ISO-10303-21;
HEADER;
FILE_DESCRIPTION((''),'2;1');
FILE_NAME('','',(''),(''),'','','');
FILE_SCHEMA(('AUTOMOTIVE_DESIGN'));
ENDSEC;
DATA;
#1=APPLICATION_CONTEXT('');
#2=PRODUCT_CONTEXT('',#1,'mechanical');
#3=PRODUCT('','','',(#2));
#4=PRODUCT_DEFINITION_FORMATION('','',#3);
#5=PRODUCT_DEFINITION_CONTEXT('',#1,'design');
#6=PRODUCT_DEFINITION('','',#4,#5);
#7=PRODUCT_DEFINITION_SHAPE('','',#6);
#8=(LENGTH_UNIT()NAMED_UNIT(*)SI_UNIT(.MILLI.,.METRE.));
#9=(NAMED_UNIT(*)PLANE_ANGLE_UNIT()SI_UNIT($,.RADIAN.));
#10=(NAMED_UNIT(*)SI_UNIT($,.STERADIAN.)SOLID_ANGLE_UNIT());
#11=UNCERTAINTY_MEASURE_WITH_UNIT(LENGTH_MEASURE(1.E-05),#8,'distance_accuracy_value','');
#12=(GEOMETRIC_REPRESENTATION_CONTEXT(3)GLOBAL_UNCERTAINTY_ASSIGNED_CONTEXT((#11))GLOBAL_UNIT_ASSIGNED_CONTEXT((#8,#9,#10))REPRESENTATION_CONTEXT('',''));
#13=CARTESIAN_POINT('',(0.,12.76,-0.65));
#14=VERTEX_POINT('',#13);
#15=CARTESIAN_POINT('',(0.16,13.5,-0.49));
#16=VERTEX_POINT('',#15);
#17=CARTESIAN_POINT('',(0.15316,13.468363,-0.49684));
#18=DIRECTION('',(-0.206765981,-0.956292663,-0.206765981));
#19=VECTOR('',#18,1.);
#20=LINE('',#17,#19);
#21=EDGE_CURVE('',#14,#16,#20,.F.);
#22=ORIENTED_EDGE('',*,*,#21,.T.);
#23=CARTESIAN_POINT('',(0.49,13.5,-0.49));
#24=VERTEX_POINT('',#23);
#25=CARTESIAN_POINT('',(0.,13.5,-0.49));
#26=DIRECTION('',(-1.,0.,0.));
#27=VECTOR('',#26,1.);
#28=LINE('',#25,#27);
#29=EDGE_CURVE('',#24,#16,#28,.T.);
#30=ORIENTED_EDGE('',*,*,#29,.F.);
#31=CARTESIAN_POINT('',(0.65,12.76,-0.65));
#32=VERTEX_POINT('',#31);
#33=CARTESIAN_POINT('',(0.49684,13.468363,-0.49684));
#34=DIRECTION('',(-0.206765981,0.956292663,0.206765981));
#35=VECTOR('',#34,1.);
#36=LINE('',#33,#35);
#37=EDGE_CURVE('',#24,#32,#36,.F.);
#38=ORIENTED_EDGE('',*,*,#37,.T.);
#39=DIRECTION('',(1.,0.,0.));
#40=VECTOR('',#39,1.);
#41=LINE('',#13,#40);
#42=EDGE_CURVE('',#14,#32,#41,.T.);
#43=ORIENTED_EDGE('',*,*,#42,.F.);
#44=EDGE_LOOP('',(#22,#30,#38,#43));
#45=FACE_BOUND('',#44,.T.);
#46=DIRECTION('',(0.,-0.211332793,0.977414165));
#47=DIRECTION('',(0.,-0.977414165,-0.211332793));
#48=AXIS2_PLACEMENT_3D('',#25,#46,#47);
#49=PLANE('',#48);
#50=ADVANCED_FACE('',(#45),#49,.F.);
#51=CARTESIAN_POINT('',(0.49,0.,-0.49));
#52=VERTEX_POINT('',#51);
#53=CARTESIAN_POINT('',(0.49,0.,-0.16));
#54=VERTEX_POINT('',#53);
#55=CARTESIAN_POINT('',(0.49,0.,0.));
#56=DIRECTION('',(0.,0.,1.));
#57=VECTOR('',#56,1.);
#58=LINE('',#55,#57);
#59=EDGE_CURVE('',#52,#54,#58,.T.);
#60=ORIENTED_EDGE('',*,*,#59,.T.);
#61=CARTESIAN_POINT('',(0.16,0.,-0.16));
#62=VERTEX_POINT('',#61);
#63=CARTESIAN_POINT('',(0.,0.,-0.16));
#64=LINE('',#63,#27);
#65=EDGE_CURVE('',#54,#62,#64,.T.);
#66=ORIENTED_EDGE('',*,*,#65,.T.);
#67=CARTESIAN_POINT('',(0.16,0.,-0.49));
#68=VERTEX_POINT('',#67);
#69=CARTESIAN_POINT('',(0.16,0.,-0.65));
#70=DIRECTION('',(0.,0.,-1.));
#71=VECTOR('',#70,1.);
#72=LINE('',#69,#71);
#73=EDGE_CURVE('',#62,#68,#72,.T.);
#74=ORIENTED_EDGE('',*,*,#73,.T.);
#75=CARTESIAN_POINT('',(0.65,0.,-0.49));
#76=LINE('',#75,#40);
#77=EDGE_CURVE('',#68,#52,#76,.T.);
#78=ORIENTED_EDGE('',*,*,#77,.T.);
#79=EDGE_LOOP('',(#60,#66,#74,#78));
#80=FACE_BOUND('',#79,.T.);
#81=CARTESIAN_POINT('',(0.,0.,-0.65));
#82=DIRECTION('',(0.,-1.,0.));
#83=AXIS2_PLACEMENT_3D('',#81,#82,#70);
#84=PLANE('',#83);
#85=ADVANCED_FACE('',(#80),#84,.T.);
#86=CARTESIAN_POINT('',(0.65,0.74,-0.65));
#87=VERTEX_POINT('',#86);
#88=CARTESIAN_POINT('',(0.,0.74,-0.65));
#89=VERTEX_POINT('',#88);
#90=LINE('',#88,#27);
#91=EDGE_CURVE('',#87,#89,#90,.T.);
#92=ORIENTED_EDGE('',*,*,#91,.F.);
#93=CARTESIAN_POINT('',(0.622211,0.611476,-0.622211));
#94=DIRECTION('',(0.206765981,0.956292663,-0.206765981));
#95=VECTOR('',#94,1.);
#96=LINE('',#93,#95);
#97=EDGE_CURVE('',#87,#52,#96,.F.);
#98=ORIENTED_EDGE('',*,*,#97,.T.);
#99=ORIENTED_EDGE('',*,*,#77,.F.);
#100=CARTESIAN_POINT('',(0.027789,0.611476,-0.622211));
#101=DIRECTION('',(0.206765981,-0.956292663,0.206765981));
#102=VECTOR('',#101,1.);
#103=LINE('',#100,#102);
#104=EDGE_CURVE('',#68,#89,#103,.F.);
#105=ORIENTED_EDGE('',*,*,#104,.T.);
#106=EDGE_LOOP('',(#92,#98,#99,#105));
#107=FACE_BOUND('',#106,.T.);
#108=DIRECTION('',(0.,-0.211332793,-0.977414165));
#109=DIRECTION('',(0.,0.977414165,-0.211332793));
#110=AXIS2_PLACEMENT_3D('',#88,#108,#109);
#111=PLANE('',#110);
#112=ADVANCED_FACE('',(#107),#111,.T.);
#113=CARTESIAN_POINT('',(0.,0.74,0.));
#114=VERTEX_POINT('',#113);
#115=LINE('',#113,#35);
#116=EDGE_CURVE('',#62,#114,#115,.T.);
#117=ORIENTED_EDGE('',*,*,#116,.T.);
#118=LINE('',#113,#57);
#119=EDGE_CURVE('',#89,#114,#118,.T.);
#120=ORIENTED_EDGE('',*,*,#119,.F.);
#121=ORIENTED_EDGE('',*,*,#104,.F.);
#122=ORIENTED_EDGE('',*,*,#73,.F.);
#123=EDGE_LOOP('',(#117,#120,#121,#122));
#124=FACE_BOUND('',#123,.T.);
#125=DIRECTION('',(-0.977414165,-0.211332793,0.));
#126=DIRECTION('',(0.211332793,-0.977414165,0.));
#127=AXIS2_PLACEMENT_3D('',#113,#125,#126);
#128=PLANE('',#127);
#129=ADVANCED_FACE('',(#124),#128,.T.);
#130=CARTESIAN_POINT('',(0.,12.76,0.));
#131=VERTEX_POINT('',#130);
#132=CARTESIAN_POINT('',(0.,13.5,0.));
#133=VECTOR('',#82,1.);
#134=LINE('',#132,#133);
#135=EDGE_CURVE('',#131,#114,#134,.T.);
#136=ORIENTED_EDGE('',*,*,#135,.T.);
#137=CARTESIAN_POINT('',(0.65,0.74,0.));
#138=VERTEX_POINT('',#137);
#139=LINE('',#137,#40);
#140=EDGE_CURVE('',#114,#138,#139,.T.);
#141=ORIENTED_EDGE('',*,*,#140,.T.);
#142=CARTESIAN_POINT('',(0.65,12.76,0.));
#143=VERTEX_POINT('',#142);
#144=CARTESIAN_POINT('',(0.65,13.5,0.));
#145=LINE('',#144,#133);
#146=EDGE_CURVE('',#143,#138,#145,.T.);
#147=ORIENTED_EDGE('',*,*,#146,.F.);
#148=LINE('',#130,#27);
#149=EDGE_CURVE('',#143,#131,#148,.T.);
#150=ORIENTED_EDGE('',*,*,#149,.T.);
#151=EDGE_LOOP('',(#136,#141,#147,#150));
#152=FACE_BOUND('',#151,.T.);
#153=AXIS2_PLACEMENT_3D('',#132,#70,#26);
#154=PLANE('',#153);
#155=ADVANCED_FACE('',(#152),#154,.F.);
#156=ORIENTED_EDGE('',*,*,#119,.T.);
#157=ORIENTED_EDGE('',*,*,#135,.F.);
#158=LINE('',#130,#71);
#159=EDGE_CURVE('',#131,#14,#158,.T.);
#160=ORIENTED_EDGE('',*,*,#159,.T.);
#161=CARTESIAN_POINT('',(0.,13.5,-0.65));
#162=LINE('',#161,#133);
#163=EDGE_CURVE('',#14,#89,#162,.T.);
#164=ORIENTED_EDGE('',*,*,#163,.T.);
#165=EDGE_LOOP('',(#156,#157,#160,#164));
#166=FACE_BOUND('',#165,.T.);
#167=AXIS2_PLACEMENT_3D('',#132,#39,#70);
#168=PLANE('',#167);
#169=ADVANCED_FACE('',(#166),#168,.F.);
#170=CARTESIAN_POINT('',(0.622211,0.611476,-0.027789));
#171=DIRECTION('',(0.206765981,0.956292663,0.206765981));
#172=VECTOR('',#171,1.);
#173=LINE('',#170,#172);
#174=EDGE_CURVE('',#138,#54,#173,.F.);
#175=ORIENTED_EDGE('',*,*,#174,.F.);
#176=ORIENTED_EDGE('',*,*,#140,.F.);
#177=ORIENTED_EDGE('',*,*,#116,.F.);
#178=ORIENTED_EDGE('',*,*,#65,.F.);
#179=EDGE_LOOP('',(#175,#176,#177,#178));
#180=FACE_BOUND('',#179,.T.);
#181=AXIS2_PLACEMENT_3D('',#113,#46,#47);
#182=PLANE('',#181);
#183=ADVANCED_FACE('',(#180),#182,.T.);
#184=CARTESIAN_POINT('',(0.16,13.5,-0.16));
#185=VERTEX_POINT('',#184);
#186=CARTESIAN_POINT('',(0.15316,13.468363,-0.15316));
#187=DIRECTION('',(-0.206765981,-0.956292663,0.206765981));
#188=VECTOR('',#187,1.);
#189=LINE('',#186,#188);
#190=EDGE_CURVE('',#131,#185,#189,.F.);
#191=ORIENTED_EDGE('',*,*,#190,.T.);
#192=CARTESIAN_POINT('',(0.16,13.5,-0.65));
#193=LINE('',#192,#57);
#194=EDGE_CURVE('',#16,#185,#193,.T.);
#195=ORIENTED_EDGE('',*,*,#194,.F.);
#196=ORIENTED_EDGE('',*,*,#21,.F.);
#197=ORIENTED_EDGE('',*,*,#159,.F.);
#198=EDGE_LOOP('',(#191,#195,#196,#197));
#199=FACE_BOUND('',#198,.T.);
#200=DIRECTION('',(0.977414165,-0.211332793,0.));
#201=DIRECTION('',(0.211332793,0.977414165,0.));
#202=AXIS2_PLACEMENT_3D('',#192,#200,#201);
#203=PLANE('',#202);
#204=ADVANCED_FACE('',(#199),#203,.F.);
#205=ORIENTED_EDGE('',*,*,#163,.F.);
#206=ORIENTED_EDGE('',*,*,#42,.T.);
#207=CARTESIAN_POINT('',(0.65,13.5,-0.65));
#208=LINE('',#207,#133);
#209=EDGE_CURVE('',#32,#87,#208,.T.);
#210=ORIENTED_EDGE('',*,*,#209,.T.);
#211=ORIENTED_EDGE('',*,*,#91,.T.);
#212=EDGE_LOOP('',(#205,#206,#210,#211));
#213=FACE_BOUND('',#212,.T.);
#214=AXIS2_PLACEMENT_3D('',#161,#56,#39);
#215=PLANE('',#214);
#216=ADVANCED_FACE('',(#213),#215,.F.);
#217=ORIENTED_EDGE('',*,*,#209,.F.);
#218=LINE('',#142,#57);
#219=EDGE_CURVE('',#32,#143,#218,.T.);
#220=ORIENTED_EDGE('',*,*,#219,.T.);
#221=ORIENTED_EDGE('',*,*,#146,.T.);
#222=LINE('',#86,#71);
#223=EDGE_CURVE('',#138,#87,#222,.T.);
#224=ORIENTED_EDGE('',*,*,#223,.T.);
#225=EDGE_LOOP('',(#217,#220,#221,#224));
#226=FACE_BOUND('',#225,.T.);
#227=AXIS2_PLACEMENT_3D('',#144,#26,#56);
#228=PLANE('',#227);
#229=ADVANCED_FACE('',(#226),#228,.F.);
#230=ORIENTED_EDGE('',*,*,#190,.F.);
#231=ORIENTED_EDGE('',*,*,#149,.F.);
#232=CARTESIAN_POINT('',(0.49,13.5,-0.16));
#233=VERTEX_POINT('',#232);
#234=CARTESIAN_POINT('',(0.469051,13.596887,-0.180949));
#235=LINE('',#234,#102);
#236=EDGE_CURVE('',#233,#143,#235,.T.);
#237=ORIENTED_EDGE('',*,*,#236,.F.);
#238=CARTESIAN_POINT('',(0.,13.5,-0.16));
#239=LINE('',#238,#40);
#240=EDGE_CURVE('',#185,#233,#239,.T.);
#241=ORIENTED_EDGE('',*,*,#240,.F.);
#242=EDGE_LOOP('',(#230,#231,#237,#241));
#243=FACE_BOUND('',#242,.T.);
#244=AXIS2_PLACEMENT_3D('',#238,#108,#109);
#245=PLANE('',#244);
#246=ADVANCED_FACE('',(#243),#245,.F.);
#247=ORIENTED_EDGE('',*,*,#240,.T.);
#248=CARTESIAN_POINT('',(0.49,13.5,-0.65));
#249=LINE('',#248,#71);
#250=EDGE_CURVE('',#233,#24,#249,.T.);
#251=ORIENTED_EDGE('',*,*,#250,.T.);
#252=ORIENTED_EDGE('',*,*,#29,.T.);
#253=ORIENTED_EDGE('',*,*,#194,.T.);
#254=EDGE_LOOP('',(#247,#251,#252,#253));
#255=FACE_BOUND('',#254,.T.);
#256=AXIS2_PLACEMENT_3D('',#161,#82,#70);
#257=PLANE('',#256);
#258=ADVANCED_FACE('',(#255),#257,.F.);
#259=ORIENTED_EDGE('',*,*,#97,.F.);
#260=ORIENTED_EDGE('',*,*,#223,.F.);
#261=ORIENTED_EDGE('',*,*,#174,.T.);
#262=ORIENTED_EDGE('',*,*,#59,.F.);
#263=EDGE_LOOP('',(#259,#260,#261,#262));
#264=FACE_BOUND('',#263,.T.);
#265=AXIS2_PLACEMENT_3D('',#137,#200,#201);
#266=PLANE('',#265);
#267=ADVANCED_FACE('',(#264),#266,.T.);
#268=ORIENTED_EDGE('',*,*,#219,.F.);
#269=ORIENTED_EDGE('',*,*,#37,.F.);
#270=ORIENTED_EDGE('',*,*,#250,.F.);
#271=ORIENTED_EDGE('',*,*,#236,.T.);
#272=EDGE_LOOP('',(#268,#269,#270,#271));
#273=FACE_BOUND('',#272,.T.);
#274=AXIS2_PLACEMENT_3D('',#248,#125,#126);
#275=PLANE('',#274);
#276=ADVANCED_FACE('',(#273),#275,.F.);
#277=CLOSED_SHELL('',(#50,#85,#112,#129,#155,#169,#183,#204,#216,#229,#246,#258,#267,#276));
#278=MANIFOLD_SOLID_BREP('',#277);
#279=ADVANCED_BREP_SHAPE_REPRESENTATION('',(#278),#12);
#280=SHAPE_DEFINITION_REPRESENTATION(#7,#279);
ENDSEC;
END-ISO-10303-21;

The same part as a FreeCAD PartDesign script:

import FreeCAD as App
import Part
import Sketcher
Q = App.Units.Quantity


def edges_at(feature, points):
    """Names of the edges that pass closest to the given points."""
    edges = feature.Shape.Edges
    near = lambda p: min(range(len(edges)), key=lambda i: edges[i].distToShape(Part.Vertex(*p))[0])
    return sorted({f"Edge{near(p) + 1}" for p in points})

doc = App.newDocument("Part")
body = doc.addObject("PartDesign::Body", "Body")

sketch1 = body.newObject("Sketcher::SketchObject", "Sketch")
sketch1.AttachmentSupport = (doc.getObject("XZ_Plane"), [""])
sketch1.MapMode = "FlatFace"
sketch1.addGeometry(Part.LineSegment(App.Vector(0, -0.7, 0), App.Vector(0, 0, 0)), False)
sketch1.addGeometry(Part.LineSegment(App.Vector(0, 0, 0), App.Vector(0.7, 0, 0)), False)
sketch1.addGeometry(Part.LineSegment(App.Vector(0.7, 0, 0), App.Vector(0.7, -0.7, 0)), False)
sketch1.addGeometry(Part.LineSegment(App.Vector(0.7, -0.7, 0), App.Vector(0, -0.7, 0)), False)
sketch1.addConstraint(Sketcher.Constraint("Coincident", 0, 2, 1, 1))
sketch1.addConstraint(Sketcher.Constraint("Coincident", 1, 2, 2, 1))
sketch1.addConstraint(Sketcher.Constraint("Coincident", 2, 2, 3, 1))
sketch1.addConstraint(Sketcher.Constraint("Coincident", 3, 2, 0, 1))
sketch1.addConstraint(Sketcher.Constraint("Vertical", 0))
sketch1.addConstraint(Sketcher.Constraint("Horizontal", 1))
sketch1.addConstraint(Sketcher.Constraint("Vertical", 2))
sketch1.addConstraint(Sketcher.Constraint("Horizontal", 3))
sketch1.addConstraint(Sketcher.Constraint("Coincident", 0, 2, -1, 1))
sketch1.addConstraint(Sketcher.Constraint("Equal", 3, 0))
sketch1.addConstraint(Sketcher.Constraint("DistanceX", 1, 1, 1, 2, Q("0.65 mm")))
pad1 = body.newObject("PartDesign::Pad", "Pad")
pad1.Profile = sketch1
pad1.Length = 13.5
pad1.Reversed = True
doc.recompute()

chamfer = body.newObject("PartDesign::Chamfer", "Chamfer")
chamfer.Base = (pad1, edges_at(pad1, [(0.65, 13.5, -0.325)]))
chamfer.ChamferType = "Two distances"
chamfer.Size = 0.74
chamfer.Size2 = 0.16
doc.recompute()

chamfer2 = body.newObject("PartDesign::Chamfer", "Chamfer001")
chamfer2.Base = (chamfer, edges_at(chamfer, [(0.245, 13.5, -0.65)]))
chamfer2.ChamferType = "Two distances"
chamfer2.Size = 0.74
chamfer2.Size2 = 0.16
chamfer2.FlipDirection = True
doc.recompute()

chamfer3 = body.newObject("PartDesign::Chamfer", "Chamfer002")
chamfer3.Base = (chamfer2, edges_at(chamfer2, [(0, 13.5, -0.245)]))
chamfer3.ChamferType = "Two distances"
chamfer3.Size = 0.74
chamfer3.Size2 = 0.16
chamfer3.FlipDirection = True
doc.recompute()

chamfer4 = body.newObject("PartDesign::Chamfer", "Chamfer003")
chamfer4.Base = (chamfer3, edges_at(chamfer3, [(0.325, 13.5, 0)]))
chamfer4.ChamferType = "Two distances"
chamfer4.Size = 0.74
chamfer4.Size2 = 0.16
chamfer4.FlipDirection = True
doc.recompute()

chamfer5 = body.newObject("PartDesign::Chamfer", "Chamfer004")
chamfer5.Base = (chamfer4, edges_at(chamfer4, [
    (0.325, 0, -0.65),
    (0.65, 0, -0.325),
    (0.325, 0, 0),
    (0, 0, -0.325),
]))
chamfer5.ChamferType = "Two distances"
chamfer5.Size = 0.16
chamfer5.Size2 = 0.74
chamfer5.FlipDirection = True

doc.recompute()
